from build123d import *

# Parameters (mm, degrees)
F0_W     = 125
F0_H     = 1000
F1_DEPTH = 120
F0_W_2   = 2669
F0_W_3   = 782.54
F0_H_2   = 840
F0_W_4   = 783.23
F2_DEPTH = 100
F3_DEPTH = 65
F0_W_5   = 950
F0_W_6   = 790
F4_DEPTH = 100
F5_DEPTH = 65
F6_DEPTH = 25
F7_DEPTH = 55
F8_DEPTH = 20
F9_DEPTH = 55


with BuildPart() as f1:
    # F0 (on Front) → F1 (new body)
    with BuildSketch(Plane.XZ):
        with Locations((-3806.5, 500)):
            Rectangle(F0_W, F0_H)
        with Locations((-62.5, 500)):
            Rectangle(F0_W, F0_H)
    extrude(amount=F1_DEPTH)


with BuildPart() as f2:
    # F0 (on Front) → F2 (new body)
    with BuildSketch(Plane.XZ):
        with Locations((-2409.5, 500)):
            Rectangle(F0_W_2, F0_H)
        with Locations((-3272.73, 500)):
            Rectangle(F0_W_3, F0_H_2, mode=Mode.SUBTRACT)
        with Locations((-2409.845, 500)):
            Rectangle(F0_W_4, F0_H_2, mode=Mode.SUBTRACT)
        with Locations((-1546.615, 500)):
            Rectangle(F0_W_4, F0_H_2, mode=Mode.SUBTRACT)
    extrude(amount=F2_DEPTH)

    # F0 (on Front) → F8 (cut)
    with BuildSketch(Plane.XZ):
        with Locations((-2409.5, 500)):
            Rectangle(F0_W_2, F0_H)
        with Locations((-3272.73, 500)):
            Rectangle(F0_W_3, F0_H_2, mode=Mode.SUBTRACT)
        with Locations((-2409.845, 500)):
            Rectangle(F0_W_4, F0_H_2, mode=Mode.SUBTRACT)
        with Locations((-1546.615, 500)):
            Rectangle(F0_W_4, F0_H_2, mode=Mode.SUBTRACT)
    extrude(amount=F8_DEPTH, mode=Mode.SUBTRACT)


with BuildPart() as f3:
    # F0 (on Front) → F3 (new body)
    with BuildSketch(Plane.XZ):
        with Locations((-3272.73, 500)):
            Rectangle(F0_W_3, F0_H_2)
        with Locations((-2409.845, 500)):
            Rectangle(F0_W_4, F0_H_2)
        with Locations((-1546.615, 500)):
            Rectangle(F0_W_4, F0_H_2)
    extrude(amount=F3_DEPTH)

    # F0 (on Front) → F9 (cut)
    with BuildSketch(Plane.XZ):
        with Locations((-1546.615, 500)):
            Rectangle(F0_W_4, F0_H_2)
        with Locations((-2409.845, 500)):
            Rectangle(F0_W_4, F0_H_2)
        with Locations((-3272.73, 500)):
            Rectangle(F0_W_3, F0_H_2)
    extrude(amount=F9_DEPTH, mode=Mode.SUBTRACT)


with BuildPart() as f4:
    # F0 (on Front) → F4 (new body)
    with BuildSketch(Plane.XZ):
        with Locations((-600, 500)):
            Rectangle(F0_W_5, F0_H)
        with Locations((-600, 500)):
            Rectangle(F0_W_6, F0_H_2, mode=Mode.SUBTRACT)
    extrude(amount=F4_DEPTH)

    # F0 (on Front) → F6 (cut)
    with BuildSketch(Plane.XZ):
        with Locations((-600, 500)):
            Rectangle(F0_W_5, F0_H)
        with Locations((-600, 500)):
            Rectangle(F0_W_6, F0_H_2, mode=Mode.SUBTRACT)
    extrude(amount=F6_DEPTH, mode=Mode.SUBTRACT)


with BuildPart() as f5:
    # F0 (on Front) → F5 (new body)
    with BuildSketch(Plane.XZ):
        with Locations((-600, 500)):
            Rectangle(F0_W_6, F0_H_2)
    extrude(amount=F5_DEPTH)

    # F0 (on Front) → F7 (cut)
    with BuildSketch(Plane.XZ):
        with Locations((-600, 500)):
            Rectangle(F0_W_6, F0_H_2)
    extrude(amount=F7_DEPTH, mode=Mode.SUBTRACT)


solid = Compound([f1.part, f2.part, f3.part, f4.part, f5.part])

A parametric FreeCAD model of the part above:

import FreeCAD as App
import Part
import Sketcher
from FreeCAD import Vector


def add_polygon(sketch, points):
    """Adds a closed chain of lines whose ends are joined by coincident constraints."""
    first, n = sketch.GeometryCount, len(points)
    for a, b in zip(points, points[1:] + points[:1]):
        sketch.addGeometry(Part.LineSegment(App.Vector(*a, 0), App.Vector(*b, 0)), False)
    for i in range(n):
        sketch.addConstraint(Sketcher.Constraint("Coincident", first + i, 2, first + (i + 1) % n, 1))

doc = App.newDocument("Part")
body = doc.addObject("PartDesign::Body", "Body")
body.AllowCompound = True

# Sketch on XZ plane
sketch1 = body.newObject("Sketcher::SketchObject", "Sketch")
sketch1.AttachmentSupport = (doc.getObject("XZ_Plane"), [""])
sketch1.MapMode = "FlatFace"
add_polygon(sketch1, [(-3869, 1000), (-3869, 0), (-3744, 0), (-3744, 1000)])  # lines 0-3
add_polygon(sketch1, [(-125, 1000), (-125, 0), (0, 0), (0, 1000)])  # lines 4-7
sketch1.addConstraint(Sketcher.Constraint("Vertical", 0))
sketch1.addConstraint(Sketcher.Constraint("Horizontal", 1))
sketch1.addConstraint(Sketcher.Constraint("Vertical", 2))
sketch1.addConstraint(Sketcher.Constraint("Horizontal", 3))
sketch1.addConstraint(Sketcher.Constraint("Vertical", 4))
sketch1.addConstraint(Sketcher.Constraint("Horizontal", 5))
sketch1.addConstraint(Sketcher.Constraint("Vertical", 6))
sketch1.addConstraint(Sketcher.Constraint("Horizontal", 7))
sketch1.addConstraint(Sketcher.Constraint("Coincident", 5, 2, -1, 1))
sketch1.addConstraint(Sketcher.Constraint("PointOnObject", 0, 2, -1))
sketch1.addConstraint(Sketcher.Constraint("Horizontal", 3, 2, 6, 2))
sketch1.addConstraint(Sketcher.Constraint("Equal", 3, 5))
sketch1.addConstraint(Sketcher.Constraint("DistanceX", 1, 1, 1, 2, 125.0))
sketch1.addConstraint(Sketcher.Constraint("DistanceY", 0, 2, 0, 1, 1000.0))
sketch1.addConstraint(Sketcher.Constraint("DistanceX", 0, 2, -1, 1, 3869.0))
pad1 = body.newObject("PartDesign::Pad", "Pad")
pad1.Profile = sketch1
pad1.Length = 120
body2 = doc.addObject("PartDesign::Body", "Body001")

# Sketch on XZ plane
sketch2 = body2.newObject("Sketcher::SketchObject", "Sketch001")
sketch2.AttachmentSupport = (doc.getObject("XZ_Plane001"), [""])
sketch2.MapMode = "FlatFace"
add_polygon(sketch2, [(-3744, 1000), (-3744, 0), (-1075, 0), (-1075, 1000)])  # lines 0-3
add_polygon(sketch2, [(-2881.46, 80), (-3664, 80), (-3664, 920), (-2881.46, 920)])  # lines 4-7
add_polygon(sketch2, [(-2018.23, 80), (-2801.46, 80), (-2801.46, 920), (-2018.23, 920)])  # lines 8-11
add_polygon(sketch2, [(-1155, 80), (-1938.23, 80), (-1938.23, 920), (-1155, 920)])  # lines 12-15
sketch2.addConstraint(Sketcher.Constraint("Vertical", 0))
sketch2.addConstraint(Sketcher.Constraint("Horizontal", 1))
sketch2.addConstraint(Sketcher.Constraint("Vertical", 2))
sketch2.addConstraint(Sketcher.Constraint("Horizontal", 3))
sketch2.addConstraint(Sketcher.Constraint("Horizontal", 4))
sketch2.addConstraint(Sketcher.Constraint("Vertical", 5))
sketch2.addConstraint(Sketcher.Constraint("Horizontal", 6))
sketch2.addConstraint(Sketcher.Constraint("Vertical", 7))
sketch2.addConstraint(Sketcher.Constraint("Horizontal", 8))
sketch2.addConstraint(Sketcher.Constraint("Vertical", 9))
sketch2.addConstraint(Sketcher.Constraint("Horizontal", 10))
sketch2.addConstraint(Sketcher.Constraint("Vertical", 11))
sketch2.addConstraint(Sketcher.Constraint("Horizontal", 12))
sketch2.addConstraint(Sketcher.Constraint("Vertical", 13))
sketch2.addConstraint(Sketcher.Constraint("Horizontal", 14))
sketch2.addConstraint(Sketcher.Constraint("Vertical", 15))
sketch2.addConstraint(Sketcher.Constraint("PointOnObject", 0, 2, -1))
sketch2.addConstraint(Sketcher.Constraint("Horizontal", 7, 2, 8, 2))
sketch2.addConstraint(Sketcher.Constraint("Horizontal", 6, 2, 9, 2))
sketch2.addConstraint(Sketcher.Constraint("Horizontal", 11, 2, 12, 2))
sketch2.addConstraint(Sketcher.Constraint("Horizontal", 10, 2, 13, 2))
sketch2.addConstraint(Sketcher.Constraint("Equal", 10, 12))
sketch2.addConstraint(Sketcher.Constraint("DistanceX", 1, 1, 1, 2, 2669.0))
sketch2.addConstraint(Sketcher.Constraint("DistanceY", 0, 2, 0, 1, 1000.0))
sketch2.addConstraint(Sketcher.Constraint("DistanceY", 5, 1, 5, 2, 840.0))
sketch2.addConstraint(Sketcher.Constraint("DistanceX", 0, 2, -1, 1, 3744.0))
sketch2.addConstraint(Sketcher.Constraint("DistanceX", 4, 2, -1, 1, 3664.0))
sketch2.addConstraint(Sketcher.Constraint("DistanceY", -1, 1, 4, 2, 80.0))
sketch2.addConstraint(Sketcher.Constraint("DistanceX", 14, 2, -1, 1, 1155.0))
sketch2.addConstraint(Sketcher.Constraint("DistanceX", 7, 2, 8, 2, 80.0))
sketch2.addConstraint(Sketcher.Constraint("DistanceX", 11, 2, 12, 2, 80.0))
sketch2.addConstraint(Sketcher.Constraint("DistanceX", 4, 2, 4, 1, 782.54))
pad2 = body2.newObject("PartDesign::Pad", "Pad001")
pad2.Profile = sketch2
pad2.Length = 100

# Sketch on XZ plane
sketch3 = body2.newObject("Sketcher::SketchObject", "Sketch002")
sketch3.AttachmentSupport = (doc.getObject("XZ_Plane001"), [""])
sketch3.MapMode = "FlatFace"
add_polygon(sketch3, [(-3744, 1000), (-3744, 0), (-1075, 0), (-1075, 1000)])  # lines 0-3
add_polygon(sketch3, [(-2881.46, 80), (-3664, 80), (-3664, 920), (-2881.46, 920)])  # lines 4-7
add_polygon(sketch3, [(-2018.23, 80), (-2801.46, 80), (-2801.46, 920), (-2018.23, 920)])  # lines 8-11
add_polygon(sketch3, [(-1155, 80), (-1938.23, 80), (-1938.23, 920), (-1155, 920)])  # lines 12-15
sketch3.addConstraint(Sketcher.Constraint("Vertical", 0))
sketch3.addConstraint(Sketcher.Constraint("Horizontal", 1))
sketch3.addConstraint(Sketcher.Constraint("Vertical", 2))
sketch3.addConstraint(Sketcher.Constraint("Horizontal", 3))
sketch3.addConstraint(Sketcher.Constraint("Horizontal", 4))
sketch3.addConstraint(Sketcher.Constraint("Vertical", 5))
sketch3.addConstraint(Sketcher.Constraint("Horizontal", 6))
sketch3.addConstraint(Sketcher.Constraint("Vertical", 7))
sketch3.addConstraint(Sketcher.Constraint("Horizontal", 8))
sketch3.addConstraint(Sketcher.Constraint("Vertical", 9))
sketch3.addConstraint(Sketcher.Constraint("Horizontal", 10))
sketch3.addConstraint(Sketcher.Constraint("Vertical", 11))
sketch3.addConstraint(Sketcher.Constraint("Horizontal", 12))
sketch3.addConstraint(Sketcher.Constraint("Vertical", 13))
sketch3.addConstraint(Sketcher.Constraint("Horizontal", 14))
sketch3.addConstraint(Sketcher.Constraint("Vertical", 15))
sketch3.addConstraint(Sketcher.Constraint("PointOnObject", 0, 2, -1))
sketch3.addConstraint(Sketcher.Constraint("Horizontal", 7, 2, 8, 2))
sketch3.addConstraint(Sketcher.Constraint("Horizontal", 6, 2, 9, 2))
sketch3.addConstraint(Sketcher.Constraint("Horizontal", 11, 2, 12, 2))
sketch3.addConstraint(Sketcher.Constraint("Horizontal", 10, 2, 13, 2))
sketch3.addConstraint(Sketcher.Constraint("Equal", 10, 12))
sketch3.addConstraint(Sketcher.Constraint("DistanceX", 1, 1, 1, 2, 2669.0))
sketch3.addConstraint(Sketcher.Constraint("DistanceY", 0, 2, 0, 1, 1000.0))
sketch3.addConstraint(Sketcher.Constraint("DistanceY", 5, 1, 5, 2, 840.0))
sketch3.addConstraint(Sketcher.Constraint("DistanceX", 0, 2, -1, 1, 3744.0))
sketch3.addConstraint(Sketcher.Constraint("DistanceX", 4, 2, -1, 1, 3664.0))
sketch3.addConstraint(Sketcher.Constraint("DistanceY", -1, 1, 4, 2, 80.0))
sketch3.addConstraint(Sketcher.Constraint("DistanceX", 14, 2, -1, 1, 1155.0))
sketch3.addConstraint(Sketcher.Constraint("DistanceX", 7, 2, 8, 2, 80.0))
sketch3.addConstraint(Sketcher.Constraint("DistanceX", 11, 2, 12, 2, 80.0))
sketch3.addConstraint(Sketcher.Constraint("DistanceX", 4, 2, 4, 1, 782.54))
pocket1 = body2.newObject("PartDesign::Pocket", "Pocket")
pocket1.Profile = sketch3
pocket1.Length = 20
pocket1.Reversed = True
body3 = doc.addObject("PartDesign::Body", "Body002")
body3.AllowCompound = True

# Sketch on XZ plane
sketch4 = body3.newObject("Sketcher::SketchObject", "Sketch003")
sketch4.AttachmentSupport = (doc.getObject("XZ_Plane002"), [""])
sketch4.MapMode = "FlatFace"
add_polygon(sketch4, [(-3664, 920), (-3664, 80), (-2881.46, 80), (-2881.46, 920)])  # lines 0-3
add_polygon(sketch4, [(-2801.46, 920), (-2801.46, 80), (-2018.23, 80), (-2018.23, 920)])  # lines 4-7
add_polygon(sketch4, [(-1938.23, 920), (-1938.23, 80), (-1155, 80), (-1155, 920)])  # lines 8-11
sketch4.addConstraint(Sketcher.Constraint("Vertical", 0))
sketch4.addConstraint(Sketcher.Constraint("Horizontal", 1))
sketch4.addConstraint(Sketcher.Constraint("Vertical", 2))
sketch4.addConstraint(Sketcher.Constraint("Horizontal", 3))
sketch4.addConstraint(Sketcher.Constraint("Vertical", 4))
sketch4.addConstraint(Sketcher.Constraint("Horizontal", 5))
sketch4.addConstraint(Sketcher.Constraint("Vertical", 6))
sketch4.addConstraint(Sketcher.Constraint("Horizontal", 7))
sketch4.addConstraint(Sketcher.Constraint("Vertical", 8))
sketch4.addConstraint(Sketcher.Constraint("Horizontal", 9))
sketch4.addConstraint(Sketcher.Constraint("Vertical", 10))
sketch4.addConstraint(Sketcher.Constraint("Horizontal", 11))
sketch4.addConstraint(Sketcher.Constraint("Horizontal", 1, 2, 4, 2))
sketch4.addConstraint(Sketcher.Constraint("Horizontal", 3, 2, 6, 2))
sketch4.addConstraint(Sketcher.Constraint("Horizontal", 5, 2, 8, 2))
sketch4.addConstraint(Sketcher.Constraint("Horizontal", 7, 2, 10, 2))
sketch4.addConstraint(Sketcher.Constraint("Equal", 7, 9))
sketch4.addConstraint(Sketcher.Constraint("DistanceY", 0, 2, 0, 1, 840.0))
sketch4.addConstraint(Sketcher.Constraint("DistanceX", 0, 2, -1, 1, 3664.0))
sketch4.addConstraint(Sketcher.Constraint("DistanceY", -1, 1, 0, 2, 80.0))
sketch4.addConstraint(Sketcher.Constraint("DistanceX", 9, 2, -1, 1, 1155.0))
sketch4.addConstraint(Sketcher.Constraint("DistanceX", 1, 2, 4, 2, 80.0))
sketch4.addConstraint(Sketcher.Constraint("DistanceX", 5, 2, 8, 2, 80.0))
sketch4.addConstraint(Sketcher.Constraint("DistanceX", 1, 1, 1, 2, 782.54))
pad3 = body3.newObject("PartDesign::Pad", "Pad002")
pad3.Profile = sketch4
pad3.Length = 65

# Sketch on XZ plane
sketch5 = body3.newObject("Sketcher::SketchObject", "Sketch004")
sketch5.AttachmentSupport = (doc.getObject("XZ_Plane002"), [""])
sketch5.MapMode = "FlatFace"
add_polygon(sketch5, [(-1938.23, 920), (-1938.23, 80), (-1155, 80), (-1155, 920)])  # lines 0-3
add_polygon(sketch5, [(-2801.46, 920), (-2801.46, 80), (-2018.23, 80), (-2018.23, 920)])  # lines 4-7
add_polygon(sketch5, [(-3664, 920), (-3664, 80), (-2881.46, 80), (-2881.46, 920)])  # lines 8-11
sketch5.addConstraint(Sketcher.Constraint("Vertical", 0))
sketch5.addConstraint(Sketcher.Constraint("Horizontal", 1))
sketch5.addConstraint(Sketcher.Constraint("Vertical", 2))
sketch5.addConstraint(Sketcher.Constraint("Horizontal", 3))
sketch5.addConstraint(Sketcher.Constraint("Vertical", 4))
sketch5.addConstraint(Sketcher.Constraint("Horizontal", 5))
sketch5.addConstraint(Sketcher.Constraint("Vertical", 6))
sketch5.addConstraint(Sketcher.Constraint("Horizontal", 7))
sketch5.addConstraint(Sketcher.Constraint("Vertical", 8))
sketch5.addConstraint(Sketcher.Constraint("Horizontal", 9))
sketch5.addConstraint(Sketcher.Constraint("Vertical", 10))
sketch5.addConstraint(Sketcher.Constraint("Horizontal", 11))
sketch5.addConstraint(Sketcher.Constraint("Horizontal", 1, 2, 4, 2))
sketch5.addConstraint(Sketcher.Constraint("Horizontal", 3, 2, 6, 2))
sketch5.addConstraint(Sketcher.Constraint("Horizontal", 5, 2, 8, 2))
sketch5.addConstraint(Sketcher.Constraint("Horizontal", 7, 2, 10, 2))
sketch5.addConstraint(Sketcher.Constraint("Equal", 3, 5))
sketch5.addConstraint(Sketcher.Constraint("DistanceY", 0, 2, 0, 1, 840.0))
sketch5.addConstraint(Sketcher.Constraint("DistanceY", -1, 1, 0, 2, 80.0))
sketch5.addConstraint(Sketcher.Constraint("DistanceX", 1, 2, -1, 1, 1155.0))
sketch5.addConstraint(Sketcher.Constraint("DistanceX", 8, 2, -1, 1, 3664.0))
sketch5.addConstraint(Sketcher.Constraint("DistanceX", 5, 2, 0, 2, 80.0))
sketch5.addConstraint(Sketcher.Constraint("DistanceX", 9, 2, 4, 2, 80.0))
sketch5.addConstraint(Sketcher.Constraint("DistanceX", 1, 1, 1, 2, 783.23))
pocket2 = body3.newObject("PartDesign::Pocket", "Pocket001")
pocket2.Profile = sketch5
pocket2.Length = 55
pocket2.Reversed = True
body4 = doc.addObject("PartDesign::Body", "Body003")

# Sketch on XZ plane
sketch6 = body4.newObject("Sketcher::SketchObject", "Sketch005")
sketch6.AttachmentSupport = (doc.getObject("XZ_Plane003"), [""])
sketch6.MapMode = "FlatFace"
add_polygon(sketch6, [(-1075, 1000), (-1075, 0), (-125, 0), (-125, 1000)])  # lines 0-3
add_polygon(sketch6, [(-205, 80), (-995, 80), (-995, 920), (-205, 920)])  # lines 4-7
sketch6.addConstraint(Sketcher.Constraint("Vertical", 0))
sketch6.addConstraint(Sketcher.Constraint("Horizontal", 1))
sketch6.addConstraint(Sketcher.Constraint("Vertical", 2))
sketch6.addConstraint(Sketcher.Constraint("Horizontal", 3))
sketch6.addConstraint(Sketcher.Constraint("Horizontal", 4))
sketch6.addConstraint(Sketcher.Constraint("Vertical", 5))
sketch6.addConstraint(Sketcher.Constraint("Horizontal", 6))
sketch6.addConstraint(Sketcher.Constraint("Vertical", 7))
sketch6.addConstraint(Sketcher.Constraint("PointOnObject", 0, 2, -1))
sketch6.addConstraint(Sketcher.Constraint("DistanceX", 1, 1, 1, 2, 950.0))
sketch6.addConstraint(Sketcher.Constraint("DistanceX", 4, 2, 4, 1, 790.0))
sketch6.addConstraint(Sketcher.Constraint("DistanceY", 0, 2, 0, 1, 1000.0))
sketch6.addConstraint(Sketcher.Constraint("DistanceY", 5, 1, 5, 2, 840.0))
sketch6.addConstraint(Sketcher.Constraint("DistanceX", 0, 2, -1, 1, 1075.0))
sketch6.addConstraint(Sketcher.Constraint("DistanceX", 4, 2, -1, 1, 995.0))
sketch6.addConstraint(Sketcher.Constraint("DistanceY", -1, 1, 4, 2, 80.0))
pad4 = body4.newObject("PartDesign::Pad", "Pad003")
pad4.Profile = sketch6
pad4.Length = 100

# Sketch on XZ plane
sketch7 = body4.newObject("Sketcher::SketchObject", "Sketch006")
sketch7.AttachmentSupport = (doc.getObject("XZ_Plane003"), [""])
sketch7.MapMode = "FlatFace"
add_polygon(sketch7, [(-1075, 1000), (-1075, 0), (-125, 0), (-125, 1000)])  # lines 0-3
add_polygon(sketch7, [(-205, 80), (-995, 80), (-995, 920), (-205, 920)])  # lines 4-7
sketch7.addConstraint(Sketcher.Constraint("Vertical", 0))
sketch7.addConstraint(Sketcher.Constraint("Horizontal", 1))
sketch7.addConstraint(Sketcher.Constraint("Vertical", 2))
sketch7.addConstraint(Sketcher.Constraint("Horizontal", 3))
sketch7.addConstraint(Sketcher.Constraint("Horizontal", 4))
sketch7.addConstraint(Sketcher.Constraint("Vertical", 5))
sketch7.addConstraint(Sketcher.Constraint("Horizontal", 6))
sketch7.addConstraint(Sketcher.Constraint("Vertical", 7))
sketch7.addConstraint(Sketcher.Constraint("PointOnObject", 0, 2, -1))
sketch7.addConstraint(Sketcher.Constraint("DistanceX", 1, 1, 1, 2, 950.0))
sketch7.addConstraint(Sketcher.Constraint("DistanceX", 4, 2, 4, 1, 790.0))
sketch7.addConstraint(Sketcher.Constraint("DistanceY", 0, 2, 0, 1, 1000.0))
sketch7.addConstraint(Sketcher.Constraint("DistanceY", 5, 1, 5, 2, 840.0))
sketch7.addConstraint(Sketcher.Constraint("DistanceX", 0, 2, -1, 1, 1075.0))
sketch7.addConstraint(Sketcher.Constraint("DistanceX", 4, 2, -1, 1, 995.0))
sketch7.addConstraint(Sketcher.Constraint("DistanceY", -1, 1, 4, 2, 80.0))
pocket3 = body4.newObject("PartDesign::Pocket", "Pocket002")
pocket3.Profile = sketch7
pocket3.Length = 25
pocket3.Reversed = True
body5 = doc.addObject("PartDesign::Body", "Body004")

# Sketch on XZ plane
sketch8 = body5.newObject("Sketcher::SketchObject", "Sketch007")
sketch8.AttachmentSupport = (doc.getObject("XZ_Plane004"), [""])
sketch8.MapMode = "FlatFace"
add_polygon(sketch8, [(-995, 920), (-995, 80), (-205, 80), (-205, 920)])  # lines 0-3
sketch8.addConstraint(Sketcher.Constraint("Vertical", 0))
sketch8.addConstraint(Sketcher.Constraint("Horizontal", 1))
sketch8.addConstraint(Sketcher.Constraint("Vertical", 2))
sketch8.addConstraint(Sketcher.Constraint("Horizontal", 3))
sketch8.addConstraint(Sketcher.Constraint("DistanceX", 1, 1, 1, 2, 790.0))
sketch8.addConstraint(Sketcher.Constraint("DistanceY", 0, 2, 0, 1, 840.0))
sketch8.addConstraint(Sketcher.Constraint("DistanceX", 0, 2, -1, 1, 995.0))
sketch8.addConstraint(Sketcher.Constraint("DistanceY", -1, 1, 0, 2, 80.0))
pad5 = body5.newObject("PartDesign::Pad", "Pad004")
pad5.Profile = sketch8
pad5.Length = 65

# Sketch on XZ plane
sketch9 = body5.newObject("Sketcher::SketchObject", "Sketch008")
sketch9.AttachmentSupport = (doc.getObject("XZ_Plane004"), [""])
sketch9.MapMode = "FlatFace"
add_polygon(sketch9, [(-995, 920), (-995, 80), (-205, 80), (-205, 920)])  # lines 0-3
sketch9.addConstraint(Sketcher.Constraint("Vertical", 0))
sketch9.addConstraint(Sketcher.Constraint("Horizontal", 1))
sketch9.addConstraint(Sketcher.Constraint("Vertical", 2))
sketch9.addConstraint(Sketcher.Constraint("Horizontal", 3))
sketch9.addConstraint(Sketcher.Constraint("DistanceX", 1, 1, 1, 2, 790.0))
sketch9.addConstraint(Sketcher.Constraint("DistanceY", 0, 2, 0, 1, 840.0))
sketch9.addConstraint(Sketcher.Constraint("DistanceX", 0, 2, -1, 1, 995.0))
sketch9.addConstraint(Sketcher.Constraint("DistanceY", -1, 1, 0, 2, 80.0))
pocket4 = body5.newObject("PartDesign::Pocket", "Pocket003")
pocket4.Profile = sketch9
pocket4.Length = 55
pocket4.Reversed = True

doc.recompute()
